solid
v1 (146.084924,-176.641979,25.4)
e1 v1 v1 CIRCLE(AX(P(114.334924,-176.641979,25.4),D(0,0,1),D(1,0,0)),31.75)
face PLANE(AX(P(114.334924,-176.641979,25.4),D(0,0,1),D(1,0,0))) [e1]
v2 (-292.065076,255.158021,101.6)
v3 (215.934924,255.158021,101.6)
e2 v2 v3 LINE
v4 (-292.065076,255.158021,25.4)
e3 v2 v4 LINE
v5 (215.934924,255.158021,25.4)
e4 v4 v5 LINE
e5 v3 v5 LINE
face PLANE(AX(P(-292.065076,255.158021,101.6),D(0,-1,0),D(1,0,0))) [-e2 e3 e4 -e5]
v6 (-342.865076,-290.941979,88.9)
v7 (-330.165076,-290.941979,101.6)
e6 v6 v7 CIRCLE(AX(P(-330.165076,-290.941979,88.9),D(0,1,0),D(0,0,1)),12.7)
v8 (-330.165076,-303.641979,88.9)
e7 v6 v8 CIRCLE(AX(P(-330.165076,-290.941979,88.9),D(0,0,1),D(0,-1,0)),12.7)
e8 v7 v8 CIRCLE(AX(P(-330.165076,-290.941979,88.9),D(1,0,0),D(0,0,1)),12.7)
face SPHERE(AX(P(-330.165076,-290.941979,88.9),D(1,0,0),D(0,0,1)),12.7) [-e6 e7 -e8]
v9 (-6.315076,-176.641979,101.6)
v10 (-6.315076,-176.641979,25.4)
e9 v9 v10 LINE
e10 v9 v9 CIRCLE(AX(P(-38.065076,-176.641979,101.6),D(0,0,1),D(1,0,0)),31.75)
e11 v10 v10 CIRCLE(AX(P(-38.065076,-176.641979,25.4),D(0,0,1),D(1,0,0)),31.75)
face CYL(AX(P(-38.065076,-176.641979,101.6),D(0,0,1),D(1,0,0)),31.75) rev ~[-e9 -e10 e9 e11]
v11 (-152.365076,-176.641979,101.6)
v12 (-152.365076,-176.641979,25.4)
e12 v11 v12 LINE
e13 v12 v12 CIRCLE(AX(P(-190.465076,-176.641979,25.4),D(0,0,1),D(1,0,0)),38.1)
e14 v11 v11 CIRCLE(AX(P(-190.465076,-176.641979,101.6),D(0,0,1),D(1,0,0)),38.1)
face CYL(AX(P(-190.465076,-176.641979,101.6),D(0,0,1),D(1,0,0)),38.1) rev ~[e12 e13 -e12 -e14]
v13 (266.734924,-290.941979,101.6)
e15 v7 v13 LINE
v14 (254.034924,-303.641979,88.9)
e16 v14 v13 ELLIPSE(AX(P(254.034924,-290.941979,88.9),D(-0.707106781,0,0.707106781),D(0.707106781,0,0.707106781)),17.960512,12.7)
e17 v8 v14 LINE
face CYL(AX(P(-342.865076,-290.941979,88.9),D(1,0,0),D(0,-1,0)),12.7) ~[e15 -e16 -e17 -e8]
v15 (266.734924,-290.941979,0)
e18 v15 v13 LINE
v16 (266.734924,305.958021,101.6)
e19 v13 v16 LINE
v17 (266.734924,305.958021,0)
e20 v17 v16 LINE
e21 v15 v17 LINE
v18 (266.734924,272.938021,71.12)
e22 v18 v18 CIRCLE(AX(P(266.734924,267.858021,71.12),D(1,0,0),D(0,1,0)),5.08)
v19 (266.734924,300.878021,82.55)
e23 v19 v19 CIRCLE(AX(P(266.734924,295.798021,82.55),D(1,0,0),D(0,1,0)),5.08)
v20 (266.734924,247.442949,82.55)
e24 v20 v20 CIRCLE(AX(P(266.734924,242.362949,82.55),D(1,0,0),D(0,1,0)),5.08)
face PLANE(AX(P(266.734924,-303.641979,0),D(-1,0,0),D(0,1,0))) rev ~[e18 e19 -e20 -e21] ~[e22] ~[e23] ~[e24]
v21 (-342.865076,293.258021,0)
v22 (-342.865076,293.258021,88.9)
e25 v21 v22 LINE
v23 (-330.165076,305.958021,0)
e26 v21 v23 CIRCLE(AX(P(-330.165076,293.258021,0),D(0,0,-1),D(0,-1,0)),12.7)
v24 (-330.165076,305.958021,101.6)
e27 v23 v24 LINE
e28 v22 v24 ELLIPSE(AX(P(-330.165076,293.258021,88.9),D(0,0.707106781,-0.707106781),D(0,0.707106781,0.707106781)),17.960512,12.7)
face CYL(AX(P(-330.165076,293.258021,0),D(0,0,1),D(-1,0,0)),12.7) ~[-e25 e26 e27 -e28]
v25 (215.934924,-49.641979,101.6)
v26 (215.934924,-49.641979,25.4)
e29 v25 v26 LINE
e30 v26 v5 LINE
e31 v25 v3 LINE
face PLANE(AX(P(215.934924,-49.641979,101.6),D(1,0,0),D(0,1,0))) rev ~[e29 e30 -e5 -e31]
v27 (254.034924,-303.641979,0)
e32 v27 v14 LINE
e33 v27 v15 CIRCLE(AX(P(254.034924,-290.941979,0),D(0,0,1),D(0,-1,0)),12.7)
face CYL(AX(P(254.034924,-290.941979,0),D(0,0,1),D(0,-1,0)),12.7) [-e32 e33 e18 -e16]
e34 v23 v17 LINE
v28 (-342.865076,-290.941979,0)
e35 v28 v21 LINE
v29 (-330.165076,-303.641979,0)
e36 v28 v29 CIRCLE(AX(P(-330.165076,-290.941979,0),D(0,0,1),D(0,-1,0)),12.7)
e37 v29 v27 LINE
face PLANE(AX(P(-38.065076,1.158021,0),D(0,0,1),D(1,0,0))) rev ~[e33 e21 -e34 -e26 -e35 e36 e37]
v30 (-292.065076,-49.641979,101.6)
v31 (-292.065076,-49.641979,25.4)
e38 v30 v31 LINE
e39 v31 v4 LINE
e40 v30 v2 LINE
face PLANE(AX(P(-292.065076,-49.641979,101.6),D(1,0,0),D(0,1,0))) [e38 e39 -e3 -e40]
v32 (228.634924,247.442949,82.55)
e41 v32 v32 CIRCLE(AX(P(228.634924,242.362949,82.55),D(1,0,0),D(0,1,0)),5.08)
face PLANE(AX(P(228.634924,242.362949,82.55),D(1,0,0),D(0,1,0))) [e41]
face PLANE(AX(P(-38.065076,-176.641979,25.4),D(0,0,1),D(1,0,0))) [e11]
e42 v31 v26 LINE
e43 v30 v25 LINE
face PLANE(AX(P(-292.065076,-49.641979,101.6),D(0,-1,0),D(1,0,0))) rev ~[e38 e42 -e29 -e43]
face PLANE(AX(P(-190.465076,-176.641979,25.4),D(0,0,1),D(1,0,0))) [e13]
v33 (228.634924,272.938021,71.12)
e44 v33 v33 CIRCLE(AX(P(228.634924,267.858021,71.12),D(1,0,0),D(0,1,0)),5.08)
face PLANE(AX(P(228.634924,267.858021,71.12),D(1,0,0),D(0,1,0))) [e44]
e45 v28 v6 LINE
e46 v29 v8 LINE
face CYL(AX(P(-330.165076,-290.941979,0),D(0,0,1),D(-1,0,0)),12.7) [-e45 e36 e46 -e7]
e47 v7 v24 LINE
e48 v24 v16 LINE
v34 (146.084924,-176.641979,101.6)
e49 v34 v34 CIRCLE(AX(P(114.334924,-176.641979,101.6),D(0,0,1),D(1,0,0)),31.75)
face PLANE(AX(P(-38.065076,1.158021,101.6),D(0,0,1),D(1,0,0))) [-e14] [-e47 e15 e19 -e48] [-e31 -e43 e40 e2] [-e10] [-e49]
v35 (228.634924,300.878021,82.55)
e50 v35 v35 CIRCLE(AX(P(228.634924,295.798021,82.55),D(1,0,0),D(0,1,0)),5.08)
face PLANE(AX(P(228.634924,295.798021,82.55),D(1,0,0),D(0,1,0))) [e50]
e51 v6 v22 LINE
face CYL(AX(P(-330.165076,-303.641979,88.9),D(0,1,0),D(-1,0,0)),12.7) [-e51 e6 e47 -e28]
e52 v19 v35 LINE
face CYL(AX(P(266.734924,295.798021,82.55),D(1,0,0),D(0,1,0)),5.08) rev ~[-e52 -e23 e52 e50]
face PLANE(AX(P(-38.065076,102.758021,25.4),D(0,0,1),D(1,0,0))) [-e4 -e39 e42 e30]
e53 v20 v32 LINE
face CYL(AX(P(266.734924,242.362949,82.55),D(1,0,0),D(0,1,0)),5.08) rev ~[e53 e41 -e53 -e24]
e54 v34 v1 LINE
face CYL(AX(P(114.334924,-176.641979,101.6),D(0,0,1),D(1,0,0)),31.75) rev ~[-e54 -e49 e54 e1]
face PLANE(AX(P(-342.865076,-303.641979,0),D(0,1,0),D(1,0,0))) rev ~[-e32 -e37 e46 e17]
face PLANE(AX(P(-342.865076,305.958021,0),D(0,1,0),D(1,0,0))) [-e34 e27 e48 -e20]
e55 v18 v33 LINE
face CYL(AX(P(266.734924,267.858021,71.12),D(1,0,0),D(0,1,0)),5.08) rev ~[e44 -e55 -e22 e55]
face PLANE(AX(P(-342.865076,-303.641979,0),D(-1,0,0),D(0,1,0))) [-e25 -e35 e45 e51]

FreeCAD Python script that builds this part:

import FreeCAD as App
import Part
import Sketcher
from FreeCAD import Vector
Q = App.Units.Quantity


def edges_at(feature, points):
    """Names of the edges that pass closest to the given points."""
    edges = feature.Shape.Edges
    near = lambda p: min(range(len(edges)), key=lambda i: edges[i].distToShape(Part.Vertex(*p))[0])
    return sorted({f"Edge{near(p) + 1}" for p in points})


def add_polygon(sketch, points):
    """Adds a closed chain of lines whose ends are joined by coincident constraints."""
    first, n = sketch.GeometryCount, len(points)
    for a, b in zip(points, points[1:] + points[:1]):
        sketch.addGeometry(Part.LineSegment(App.Vector(*a, 0), App.Vector(*b, 0)), False)
    for i in range(n):
        sketch.addConstraint(Sketcher.Constraint("Coincident", first + i, 2, first + (i + 1) % n, 1))

doc = App.newDocument("Part")
body = doc.addObject("PartDesign::Body", "Body")

# Sketch on XY plane
sketch1 = body.newObject("Sketcher::SketchObject", "Sketch")
sketch1.AttachmentSupport = (doc.getObject("XY_Plane"), [""])
sketch1.MapMode = "FlatFace"
add_polygon(sketch1, [(-343, 306), (-343, -304), (267, -304), (267, 306)])  # lines 0-3
sketch1.addConstraint([
    Sketcher.Constraint("Vertical", 0),
    Sketcher.Constraint("Horizontal", 1),
    Sketcher.Constraint("Vertical", 2),
    Sketcher.Constraint("Horizontal", 3),
    Sketcher.Constraint("Equal", 3, 0),
    Sketcher.Constraint("DistanceX", 1, 1, 1, 2, Q("24 in")),
    Sketcher.Constraint("DistanceY", 0, 2, -1, 1, 303.641979),
    Sketcher.Constraint("DistanceX", 0, 2, -1, 1, 342.865076),
])
pad1 = body.newObject("PartDesign::Pad", "Pad")
pad1.Profile = sketch1
pad1.Length = Q("4 in")

# Sketch on XY plane
sketch2 = body.newObject("Sketcher::SketchObject", "Sketch001")
sketch2.AttachmentSupport = (doc.getObject("XY_Plane"), [""])
sketch2.MapMode = "FlatFace"
sketch2.AttachmentOffset = App.Placement(Vector(0, 0, 4 * 25.4), App.Rotation())
add_polygon(sketch2, [(-292, 255), (-292, -50), (216, -50), (216, 255)])  # lines 0-3
sketch2.addGeometry(Part.Circle(Vector(-190, -177, 0), Vector(0, 0, 1), 38), False)  # 4
sketch2.addGeometry(Part.Circle(Vector(-38, -177, 0), Vector(0, 0, 1), 32), False)  # 5
sketch2.addGeometry(Part.Circle(Vector(114, -177, 0), Vector(0, 0, 1), 32), False)  # 6
sketch2.addConstraint([
    Sketcher.Constraint("Vertical", 0),
    Sketcher.Constraint("Horizontal", 1),
    Sketcher.Constraint("Vertical", 2),
    Sketcher.Constraint("Horizontal", 3),
    Sketcher.Constraint("Equal", 5, 6),
    Sketcher.Constraint("Horizontal", 4, 3, 5, 3),
    Sketcher.Constraint("Horizontal", 5, 3, 6, 3),
    Sketcher.Constraint("Diameter", 4, Q("3 in")),
    Sketcher.Constraint("Diameter", 5, Q("2.5 in")),
    Sketcher.Constraint("DistanceX", 1, 1, 1, 2, Q("20 in")),
    Sketcher.Constraint("DistanceY", 0, 2, 0, 1, Q("12 in")),
    Sketcher.Constraint("DistanceX", 4, 3, 5, 3, Q("6 in")),
    Sketcher.Constraint("DistanceX", 5, 3, 6, 3, Q("6 in")),
    Sketcher.Constraint("DistanceX", 0, 2, 4, 3, Q("4 in")),
    Sketcher.Constraint("DistanceY", 4, 3, 0, 2, Q("5 in")),
    Sketcher.Constraint("DistanceY", 4, 3, -1, 1, 176.641979),
    Sketcher.Constraint("DistanceX", 4, 3, -1, 1, 190.465076),
])
pocket1 = body.newObject("PartDesign::Pocket", "Pocket")
pocket1.Profile = sketch2
pocket1.Length = Q("3 in")
doc.recompute()

fillet = body.newObject("PartDesign::Fillet", "Fillet")
fillet.Base = (pocket1, edges_at(pocket1, [
    (-38.065, -303.642, 101.6),
    (266.735, -303.642, 50.8),
    (-342.865, 1.158, 101.6),
    (-342.865, -303.642, 50.8),
    (-342.865, 305.958, 50.8),
]))
fillet.Radius = Q("0.5 in")

# Sketch on YZ plane
sketch3 = body.newObject("Sketcher::SketchObject", "Sketch002")
sketch3.AttachmentSupport = (doc.getObject("YZ_Plane"), [""])
sketch3.MapMode = "FlatFace"
sketch3.AttachmentOffset = App.Placement(Vector(0, 0, 266.734924), App.Rotation())
sketch3.addGeometry([
    Part.Circle(Vector(242, 83, 0), Vector(0, 0, 1), 5),
    Part.Circle(Vector(268, 71, 0), Vector(0, 0, 1), 5),
    Part.Circle(Vector(296, 83, 0), Vector(0, 0, 1), 5),
], False)
sketch3.addConstraint([
    Sketcher.Constraint("Equal", 0, 1),
    Sketcher.Constraint("Equal", 1, 2),
    Sketcher.Constraint("Horizontal", 0, 3, 2, 3),
    Sketcher.Constraint("Diameter", 0, Q("0.4 in")),
    Sketcher.Constraint("DistanceY", -1, 1, 1, 3, Q("2.8 in")),
    Sketcher.Constraint("DistanceX", 1, 3, 2, 3, Q("1.1 in")),
    Sketcher.Constraint("DistanceY", -1, 1, 0, 3, Q("3.25 in")),
    Sketcher.Constraint("DistanceX", -1, 1, 0, 3, 242.362949),
    Sketcher.Constraint("DistanceX", -1, 1, 1, 3, 267.858021),
])
pocket2 = body.newObject("PartDesign::Pocket", "Pocket001")
pocket2.Profile = sketch3
pocket2.Length = Q("1.5 in")

doc.recompute()
